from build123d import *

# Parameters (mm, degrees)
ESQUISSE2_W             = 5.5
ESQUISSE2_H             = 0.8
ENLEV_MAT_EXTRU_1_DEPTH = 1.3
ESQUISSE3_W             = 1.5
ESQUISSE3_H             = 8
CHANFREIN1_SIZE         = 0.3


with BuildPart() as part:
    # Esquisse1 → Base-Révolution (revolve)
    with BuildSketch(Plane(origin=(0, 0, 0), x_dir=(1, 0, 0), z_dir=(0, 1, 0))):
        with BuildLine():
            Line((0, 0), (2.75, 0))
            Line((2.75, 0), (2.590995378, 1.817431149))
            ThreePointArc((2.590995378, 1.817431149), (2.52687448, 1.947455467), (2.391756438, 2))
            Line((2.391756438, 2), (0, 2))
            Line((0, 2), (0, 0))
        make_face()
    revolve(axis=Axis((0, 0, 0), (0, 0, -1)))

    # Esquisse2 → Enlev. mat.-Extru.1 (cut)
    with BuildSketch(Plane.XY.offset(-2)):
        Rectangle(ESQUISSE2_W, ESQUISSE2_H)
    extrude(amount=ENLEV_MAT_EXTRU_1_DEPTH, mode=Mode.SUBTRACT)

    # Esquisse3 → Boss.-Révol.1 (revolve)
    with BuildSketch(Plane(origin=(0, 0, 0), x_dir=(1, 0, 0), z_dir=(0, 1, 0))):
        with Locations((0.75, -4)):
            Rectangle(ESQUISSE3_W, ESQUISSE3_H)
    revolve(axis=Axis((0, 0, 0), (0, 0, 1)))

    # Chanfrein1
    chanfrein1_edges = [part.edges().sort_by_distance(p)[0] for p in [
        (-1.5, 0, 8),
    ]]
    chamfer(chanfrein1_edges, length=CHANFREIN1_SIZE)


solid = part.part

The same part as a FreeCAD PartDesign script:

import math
import FreeCAD as App
import Part
import Sketcher

V = App.Vector
Q = App.Units.Quantity


def edges_at(feature, points):
    """Names of the edges that pass closest to the given points."""
    edges = feature.Shape.Edges
    near = lambda p: min(range(len(edges)), key=lambda i: edges[i].distToShape(Part.Vertex(*p))[0])
    return sorted({f"Edge{near(p) + 1}" for p in points})


def add_polygon(sketch, points):
    """Adds a closed chain of lines whose ends are joined by coincident constraints."""
    first, n = sketch.GeometryCount, len(points)
    for a, b in zip(points, points[1:] + points[:1]):
        sketch.addGeometry(Part.LineSegment(App.Vector(*a, 0), App.Vector(*b, 0)), False)
    for i in range(n):
        sketch.addConstraint(Sketcher.Constraint("Coincident", first + i, 2, first + (i + 1) % n, 1))

doc = App.newDocument("Part")
body = doc.addObject("PartDesign::Body", "Body")

sketch1 = body.newObject("Sketcher::SketchObject", "Sketch")
sketch1.AttachmentSupport = (doc.getObject("XZ_Plane"), [""])
sketch1.MapMode = "FlatFace"
sketch1.addGeometry(Part.LineSegment(V(0, 0, 0), V(2.75, 0, 0)), False)
sketch1.addGeometry(Part.LineSegment(V(2.75, 0, 0), V(2.590995, -1.817431, 0)), False)
sketch1.addGeometry(Part.ArcOfCircle(Part.Circle(V(2.391756, -1.8, 0), V(0, 0, 1), 0.2), math.radians(-90), math.radians(-5)), False)
sketch1.addGeometry(Part.LineSegment(V(2.391756, -2, 0), V(0, -2, 0)), False)
sketch1.addGeometry(Part.LineSegment(V(0, -2, 0), V(0, 0, 0)), False)
sketch1.addConstraint(Sketcher.Constraint("Coincident", 0, 2, 1, 1))
sketch1.addConstraint(Sketcher.Constraint("Tangent", 1, 2, 2, 2))
sketch1.addConstraint(Sketcher.Constraint("Tangent", 2, 1, 3, 1))
sketch1.addConstraint(Sketcher.Constraint("Coincident", 3, 2, 4, 1))
sketch1.addConstraint(Sketcher.Constraint("Coincident", 4, 2, 0, 1))
sketch1.addConstraint(Sketcher.Constraint("Horizontal", 0))
sketch1.addConstraint(Sketcher.Constraint("Horizontal", 3))
sketch1.addConstraint(Sketcher.Constraint("Vertical", 4))
sketch1.addConstraint(Sketcher.Constraint("Coincident", 4, 2, -1, 1))
sketch1.addConstraint(Sketcher.Constraint("Radius", 2, 0.2))
sketch1.addConstraint(Sketcher.Constraint("DistanceY", 4, 1, 4, 2, 2.0))
sketch1.addConstraint(Sketcher.Constraint("Angle", 1, Q("-95 deg")))
sketch1.addConstraint(Sketcher.Constraint("DistanceX", 0, 1, 0, 2, 2.75))
revolution = body.newObject("PartDesign::Revolution", "Revolution")
revolution.Profile = sketch1
revolution.ReferenceAxis = (sketch1, ["V_Axis"])
revolution.Angle = 360

sketch2 = body.newObject("Sketcher::SketchObject", "Sketch001")
sketch2.AttachmentSupport = (doc.getObject("XY_Plane"), [""])
sketch2.MapMode = "FlatFace"
sketch2.AttachmentOffset = App.Placement(V(0, 0, -2), App.Rotation())
add_polygon(sketch2, [(-2.75, 0.4), (-2.75, -0.4), (2.75, -0.4), (2.75, 0.4)])
sketch2.addConstraint(Sketcher.Constraint("Vertical", 0))
sketch2.addConstraint(Sketcher.Constraint("Horizontal", 1))
sketch2.addConstraint(Sketcher.Constraint("Vertical", 2))
sketch2.addConstraint(Sketcher.Constraint("Horizontal", 3))
sketch2.addConstraint(Sketcher.Constraint("Symmetric", 0, 2, 2, 2, -1, 1))
sketch2.addConstraint(Sketcher.Constraint("DistanceX", 1, 1, 1, 2, 5.5))
sketch2.addConstraint(Sketcher.Constraint("DistanceY", 0, 2, 0, 1, 0.8))
pocket1 = body.newObject("PartDesign::Pocket", "Pocket")
pocket1.Profile = sketch2
pocket1.Length = 1.3
pocket1.Reversed = True

sketch3 = body.newObject("Sketcher::SketchObject", "Sketch002")
sketch3.AttachmentSupport = (doc.getObject("XZ_Plane"), [""])
sketch3.MapMode = "FlatFace"
add_polygon(sketch3, [(0, 0), (0, 8), (1.5, 8), (1.5, 0)])
sketch3.addConstraint(Sketcher.Constraint("Vertical", 0))
sketch3.addConstraint(Sketcher.Constraint("Horizontal", 1))
sketch3.addConstraint(Sketcher.Constraint("Vertical", 2))
sketch3.addConstraint(Sketcher.Constraint("Horizontal", 3))
sketch3.addConstraint(Sketcher.Constraint("Coincident", 3, 2, -1, 1))
sketch3.addConstraint(Sketcher.Constraint("DistanceY", 0, 1, 0, 2, 8.0))
sketch3.addConstraint(Sketcher.Constraint("DistanceX", 1, 1, 1, 2, 1.5))
revolution2 = body.newObject("PartDesign::Revolution", "Revolution001")
revolution2.Profile = sketch3
revolution2.ReferenceAxis = (sketch3, ["V_Axis"])
revolution2.Angle = 360
doc.recompute()

chamfer = body.newObject("PartDesign::Chamfer", "Chamfer")
chamfer.Base = (revolution2, edges_at(revolution2, [(-1.5, 0, 8)]))
chamfer.Size = 0.3

doc.recompute()
